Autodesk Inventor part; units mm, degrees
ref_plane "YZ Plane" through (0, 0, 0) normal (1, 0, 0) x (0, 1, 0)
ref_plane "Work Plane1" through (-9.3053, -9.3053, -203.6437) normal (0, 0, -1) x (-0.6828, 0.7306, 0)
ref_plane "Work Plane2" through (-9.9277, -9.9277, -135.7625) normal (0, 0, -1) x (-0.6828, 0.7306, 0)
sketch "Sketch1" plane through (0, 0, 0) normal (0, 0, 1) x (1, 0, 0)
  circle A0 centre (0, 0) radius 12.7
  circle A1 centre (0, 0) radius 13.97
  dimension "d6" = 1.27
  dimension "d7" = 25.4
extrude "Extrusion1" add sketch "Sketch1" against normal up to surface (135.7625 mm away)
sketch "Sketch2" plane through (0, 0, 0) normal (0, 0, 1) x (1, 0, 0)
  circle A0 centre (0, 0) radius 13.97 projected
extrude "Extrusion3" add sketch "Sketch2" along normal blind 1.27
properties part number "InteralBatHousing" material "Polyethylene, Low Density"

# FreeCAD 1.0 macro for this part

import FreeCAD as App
import Part
import Sketcher

V = App.Vector
Q = App.Units.Quantity

doc = App.newDocument("Part")
params = doc.addObject("Spreadsheet::Sheet", "Params")
for row, (alias, value) in enumerate([
    ("sketch1_diameter", "1 in"),
    ("sketch1_diameter2", "1.1 in"),
    ("pad1_length", "135.7625 mm"),
    ("sketch2_diameter", "1.1 in"),
    ("pad2_length", "0.05 in"),
], start=1):
    params.set(f"A{row}", alias)
    params.set(f"B{row}", "=" + value)
    params.setAlias(f"B{row}", alias)

body = doc.addObject("PartDesign::Body", "Body")

sketch1 = body.newObject("Sketcher::SketchObject", "Sketch")
sketch1.AttachmentSupport = (doc.getObject("XY_Plane"), [""])
sketch1.MapMode = "FlatFace"
sketch1.addGeometry(Part.Circle(V(0, 0, 0), V(0, 0, 1), 14), False)
sketch1.addGeometry(Part.Circle(V(0, 0, 0), V(0, 0, 1), 13), False)
sketch1.addConstraint(Sketcher.Constraint("Coincident", 0, 3, -1, 1))
sketch1.addConstraint(Sketcher.Constraint("Coincident", 1, 3, -1, 1))
sketch1.addConstraint(Sketcher.Constraint("Diameter", 1, Q("1 in")))
sketch1.addConstraint(Sketcher.Constraint("Diameter", 0, Q("1.1 in")))
sketch1.setExpression("Constraints[2]", "Params.sketch1_diameter")
sketch1.setExpression("Constraints[3]", "Params.sketch1_diameter2")
pad1 = body.newObject("PartDesign::Pad", "Pad")
pad1.Profile = sketch1
pad1.setExpression("Length", "Params.pad1_length")
pad1.Reversed = True

sketch2 = body.newObject("Sketcher::SketchObject", "Sketch001")
sketch2.AttachmentSupport = (doc.getObject("XY_Plane"), [""])
sketch2.MapMode = "FlatFace"
sketch2.addGeometry(Part.Circle(V(0, 0, 0), V(0, 0, 1), 14), False)
sketch2.addConstraint(Sketcher.Constraint("Coincident", 0, 3, -1, 1))
sketch2.addConstraint(Sketcher.Constraint("Diameter", 0, Q("1.1 in")))
sketch2.setExpression("Constraints[1]", "Params.sketch2_diameter")
pad2 = body.newObject("PartDesign::Pad", "Pad001")
pad2.Profile = sketch2
pad2.setExpression("Length", "Params.pad2_length")

doc.recompute()
